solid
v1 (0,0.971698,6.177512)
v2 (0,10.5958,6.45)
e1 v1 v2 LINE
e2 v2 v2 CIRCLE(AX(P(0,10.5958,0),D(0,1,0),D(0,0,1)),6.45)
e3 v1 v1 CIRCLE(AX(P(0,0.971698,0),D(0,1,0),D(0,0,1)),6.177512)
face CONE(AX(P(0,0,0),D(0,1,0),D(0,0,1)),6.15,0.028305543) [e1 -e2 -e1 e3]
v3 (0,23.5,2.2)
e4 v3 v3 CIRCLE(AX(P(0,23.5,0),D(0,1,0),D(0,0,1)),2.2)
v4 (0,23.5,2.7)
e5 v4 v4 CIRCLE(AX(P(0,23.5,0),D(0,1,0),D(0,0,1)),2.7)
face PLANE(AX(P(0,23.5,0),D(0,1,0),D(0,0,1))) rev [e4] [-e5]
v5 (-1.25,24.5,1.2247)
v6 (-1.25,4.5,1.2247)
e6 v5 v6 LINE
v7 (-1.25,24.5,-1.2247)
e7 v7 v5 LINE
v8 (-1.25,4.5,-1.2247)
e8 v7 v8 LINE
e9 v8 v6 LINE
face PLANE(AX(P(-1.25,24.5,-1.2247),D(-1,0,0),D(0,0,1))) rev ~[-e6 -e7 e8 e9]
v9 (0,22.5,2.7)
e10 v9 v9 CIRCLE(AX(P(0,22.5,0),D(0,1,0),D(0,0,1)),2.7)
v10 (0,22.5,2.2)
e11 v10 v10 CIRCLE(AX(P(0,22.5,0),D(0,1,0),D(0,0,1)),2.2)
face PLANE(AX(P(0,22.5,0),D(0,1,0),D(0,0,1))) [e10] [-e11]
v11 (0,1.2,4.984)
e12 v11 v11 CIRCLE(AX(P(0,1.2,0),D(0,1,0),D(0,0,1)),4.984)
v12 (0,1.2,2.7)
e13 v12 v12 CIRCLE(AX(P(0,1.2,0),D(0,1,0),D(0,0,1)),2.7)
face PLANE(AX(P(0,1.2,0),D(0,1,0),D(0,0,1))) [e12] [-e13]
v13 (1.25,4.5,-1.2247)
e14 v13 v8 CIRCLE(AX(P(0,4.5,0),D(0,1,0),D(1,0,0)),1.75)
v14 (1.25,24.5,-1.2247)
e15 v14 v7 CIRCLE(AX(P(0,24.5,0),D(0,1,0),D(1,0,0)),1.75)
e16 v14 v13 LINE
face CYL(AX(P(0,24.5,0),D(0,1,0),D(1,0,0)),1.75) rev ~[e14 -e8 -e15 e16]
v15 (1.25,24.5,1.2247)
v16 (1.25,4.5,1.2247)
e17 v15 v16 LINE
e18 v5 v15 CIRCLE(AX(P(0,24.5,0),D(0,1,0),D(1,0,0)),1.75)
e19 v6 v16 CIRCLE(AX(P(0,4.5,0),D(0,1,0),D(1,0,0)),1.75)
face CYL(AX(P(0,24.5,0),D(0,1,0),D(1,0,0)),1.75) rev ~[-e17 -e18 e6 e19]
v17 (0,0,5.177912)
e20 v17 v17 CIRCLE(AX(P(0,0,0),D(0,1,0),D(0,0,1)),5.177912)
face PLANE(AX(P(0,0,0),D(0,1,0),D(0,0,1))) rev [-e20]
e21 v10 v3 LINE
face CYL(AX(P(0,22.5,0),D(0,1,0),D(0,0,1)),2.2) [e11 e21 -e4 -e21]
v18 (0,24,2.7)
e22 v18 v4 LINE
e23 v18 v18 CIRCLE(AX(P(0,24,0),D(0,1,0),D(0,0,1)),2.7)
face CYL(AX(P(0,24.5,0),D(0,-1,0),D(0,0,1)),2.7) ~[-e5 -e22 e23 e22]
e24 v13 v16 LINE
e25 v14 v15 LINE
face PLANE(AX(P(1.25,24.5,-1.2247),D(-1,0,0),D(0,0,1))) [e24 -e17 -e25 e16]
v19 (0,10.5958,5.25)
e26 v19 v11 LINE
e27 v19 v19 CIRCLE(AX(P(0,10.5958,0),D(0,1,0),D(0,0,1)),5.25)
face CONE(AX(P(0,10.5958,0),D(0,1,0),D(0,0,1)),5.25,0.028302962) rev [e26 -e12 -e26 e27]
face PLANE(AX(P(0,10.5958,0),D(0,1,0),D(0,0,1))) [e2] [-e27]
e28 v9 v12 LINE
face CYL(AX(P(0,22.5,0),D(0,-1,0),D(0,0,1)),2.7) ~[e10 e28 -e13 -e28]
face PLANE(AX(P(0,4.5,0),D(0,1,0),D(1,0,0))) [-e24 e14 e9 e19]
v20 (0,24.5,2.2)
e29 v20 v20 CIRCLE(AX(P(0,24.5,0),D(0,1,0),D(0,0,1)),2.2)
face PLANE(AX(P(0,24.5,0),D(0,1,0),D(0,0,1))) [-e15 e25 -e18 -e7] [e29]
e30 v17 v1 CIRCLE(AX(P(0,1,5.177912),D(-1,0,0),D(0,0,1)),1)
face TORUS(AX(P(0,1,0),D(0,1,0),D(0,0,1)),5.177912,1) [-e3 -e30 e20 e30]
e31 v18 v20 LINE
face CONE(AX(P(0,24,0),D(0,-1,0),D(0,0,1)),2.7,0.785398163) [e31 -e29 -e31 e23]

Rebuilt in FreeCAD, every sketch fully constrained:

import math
import FreeCAD as App
import Part
import Sketcher

V = App.Vector
Q = App.Units.Quantity


def edges_at(feature, points):
    """Names of the edges that pass closest to the given points."""
    edges = feature.Shape.Edges
    near = lambda p: min(range(len(edges)), key=lambda i: edges[i].distToShape(Part.Vertex(*p))[0])
    return sorted({f"Edge{near(p) + 1}" for p in points})

doc = App.newDocument("Part")
body = doc.addObject("PartDesign::Body", "Body")

# Sketch on YZ plane
sketch1 = doc.addObject("Sketcher::SketchObject", "Sketch")
body.addObject(sketch1)
sketch1.AttachmentSupport = (doc.YZ_Plane, [""])
sketch1.MapMode = "FlatFace"
sketch1.addGeometry(Part.LineSegment(V(0, 6.2, 0), V(0, 0, 0)), False)
sketch1.addGeometry(Part.LineSegment(V(0, 0, 0), V(24.5, 0, 0)), False)
sketch1.addGeometry(Part.LineSegment(V(24.5, 0, 0), V(24.5, 2.7, 0)), False)
sketch1.addGeometry(Part.LineSegment(V(24.5, 2.7, 0), V(23.5, 2.7, 0)), False)
sketch1.addGeometry(Part.LineSegment(V(23.5, 2.7, 0), V(23.5, 2.2, 0)), False)
sketch1.addGeometry(Part.LineSegment(V(23.5, 2.2, 0), V(22.5, 2.2, 0)), False)
sketch1.addGeometry(Part.LineSegment(V(22.5, 2.2, 0), V(22.5, 2.7, 0)), False)
sketch1.addGeometry(Part.LineSegment(V(22.5, 2.7, 0), V(1.2, 2.7, 0)), False)
sketch1.addGeometry(Part.LineSegment(V(1.2, 2.7, 0), V(1.2, 5, 0)), False)
sketch1.addGeometry(Part.LineSegment(V(1.2, 5, 0), V(10.6, 5.2, 0)), False)
sketch1.addGeometry(Part.LineSegment(V(10.6, 5.2, 0), V(10.6, 6.5, 0)), False)
sketch1.addGeometry(Part.LineSegment(V(10.6, 6.5, 0), V(0, 6.2, 0)), False)
sketch1.addConstraint(Sketcher.Constraint("Coincident", 0, 2, 1, 1))
sketch1.addConstraint(Sketcher.Constraint("Coincident", 1, 2, 2, 1))
sketch1.addConstraint(Sketcher.Constraint("Coincident", 2, 2, 3, 1))
sketch1.addConstraint(Sketcher.Constraint("Coincident", 3, 2, 4, 1))
sketch1.addConstraint(Sketcher.Constraint("Coincident", 4, 2, 5, 1))
sketch1.addConstraint(Sketcher.Constraint("Coincident", 5, 2, 6, 1))
sketch1.addConstraint(Sketcher.Constraint("Coincident", 6, 2, 7, 1))
sketch1.addConstraint(Sketcher.Constraint("Coincident", 7, 2, 8, 1))
sketch1.addConstraint(Sketcher.Constraint("Coincident", 8, 2, 9, 1))
sketch1.addConstraint(Sketcher.Constraint("Coincident", 9, 2, 10, 1))
sketch1.addConstraint(Sketcher.Constraint("Coincident", 10, 2, 11, 1))
sketch1.addConstraint(Sketcher.Constraint("Coincident", 11, 2, 0, 1))
sketch1.addConstraint(Sketcher.Constraint("Vertical", 0))
sketch1.addConstraint(Sketcher.Constraint("Horizontal", 1))
sketch1.addConstraint(Sketcher.Constraint("Vertical", 2))
sketch1.addConstraint(Sketcher.Constraint("Horizontal", 3))
sketch1.addConstraint(Sketcher.Constraint("Vertical", 4))
sketch1.addConstraint(Sketcher.Constraint("Horizontal", 5))
sketch1.addConstraint(Sketcher.Constraint("Vertical", 6))
sketch1.addConstraint(Sketcher.Constraint("Horizontal", 7))
sketch1.addConstraint(Sketcher.Constraint("Vertical", 8))
sketch1.addConstraint(Sketcher.Constraint("Vertical", 10))
sketch1.addConstraint(Sketcher.Constraint("Coincident", 0, 2, -1, 1))
sketch1.addConstraint(Sketcher.Constraint("Parallel", 9, 11))
sketch1.addConstraint(Sketcher.Constraint("Horizontal", 3, 2, 6, 2))
sketch1.addConstraint(Sketcher.Constraint("Equal", 3, 5))
sketch1.addConstraint(Sketcher.Constraint("DistanceX", 3, 2, 3, 1, Q("1 mm")))
sketch1.addConstraint(Sketcher.Constraint("DistanceX", 1, 1, 1, 2, Q("24.5 mm")))
sketch1.addConstraint(Sketcher.Constraint("DistanceY", 2, 1, 2, 2, Q("2.7 mm")))
sketch1.addConstraint(Sketcher.Constraint("DistanceY", 4, 2, 4, 1, Q("0.5 mm")))
sketch1.addConstraint(Sketcher.Constraint("DistanceY", 10, 1, 10, 2, Q("1.2 mm")))
sketch1.addConstraint(Sketcher.Constraint("Distance", 11, Q("10.6 mm")))
sketch1.addConstraint(Sketcher.Constraint("DistanceY", 0, 2, 0, 1, Q("6.15 mm")))
sketch1.addConstraint(Sketcher.Constraint("DistanceX", -1, 1, 7, 2, Q("1.2 mm")))
sketch1.addConstraint(Sketcher.Constraint("DistanceY", -1, 1, 10, 2, Q("6.45 mm")))
revolution = doc.addObject("PartDesign::Revolution", "Revolution")
body.addObject(revolution)
revolution.Profile = sketch1
revolution.ReferenceAxis = (sketch1, ["H_Axis"])
revolution.Angle = 360
doc.recompute()

fillet = doc.addObject("PartDesign::Fillet", "Fillet")
body.addObject(fillet)
fillet.Base = (revolution, edges_at(revolution, [(0, 0, -6.15)]))
fillet.Radius = 1

# Sketch on XZ plane
sketch2 = doc.addObject("Sketcher::SketchObject", "Sketch001")
body.addObject(sketch2)
sketch2.AttachmentSupport = (doc.XZ_Plane, [""])
sketch2.MapMode = "FlatFace"
sketch2.AttachmentOffset = App.Placement(V(0, 0, -24.5), App.Rotation())
sketch2.addGeometry(Part.LineSegment(V(1.2, 1.2, 0), V(1.2, -1.2, 0)), False)
sketch2.addGeometry(Part.ArcOfCircle(Part.Circle(V(0, 0, 0), V(0, 0, 1), 1.8), math.radians(-136), math.radians(-44)), False)
sketch2.addGeometry(Part.LineSegment(V(-1.2, -1.2, 0), V(-1.2, 1.2, 0)), False)
sketch2.addGeometry(Part.ArcOfCircle(Part.Circle(V(0, 0, 0), V(0, 0, 1), 1.8), math.radians(44), math.radians(136)), False)
sketch2.addConstraint(Sketcher.Constraint("Coincident", 0, 2, 1, 2))
sketch2.addConstraint(Sketcher.Constraint("Coincident", 1, 1, 2, 1))
sketch2.addConstraint(Sketcher.Constraint("Coincident", 2, 2, 3, 2))
sketch2.addConstraint(Sketcher.Constraint("Coincident", 3, 1, 0, 1))
sketch2.addConstraint(Sketcher.Constraint("Vertical", 0))
sketch2.addConstraint(Sketcher.Constraint("Vertical", 2))
sketch2.addConstraint(Sketcher.Constraint("Coincident", 1, 3, -1, 1))
sketch2.addConstraint(Sketcher.Constraint("Coincident", 3, 3, -1, 1))
sketch2.addConstraint(Sketcher.Constraint("Equal", 1, 3))
sketch2.addConstraint(Sketcher.Constraint("Horizontal", 0, 2, 1, 1))
sketch2.addConstraint(Sketcher.Constraint("Radius", 1, Q("1.75 mm")))
sketch2.addConstraint(Sketcher.Constraint("DistanceX", -1, 1, 0, 2, Q("1.25 mm")))
pocket1 = doc.addObject("PartDesign::Pocket", "Pocket")
body.addObject(pocket1)
pocket1.Profile = sketch2
pocket1.Length = 20
pocket1.Reversed = True
doc.recompute()

chamfer = doc.addObject("PartDesign::Chamfer", "Chamfer")
body.addObject(chamfer)
chamfer.Base = (pocket1, edges_at(pocket1, [(0, 24.5, -2.7)]))
chamfer.Size = 0.5

doc.recompute()
